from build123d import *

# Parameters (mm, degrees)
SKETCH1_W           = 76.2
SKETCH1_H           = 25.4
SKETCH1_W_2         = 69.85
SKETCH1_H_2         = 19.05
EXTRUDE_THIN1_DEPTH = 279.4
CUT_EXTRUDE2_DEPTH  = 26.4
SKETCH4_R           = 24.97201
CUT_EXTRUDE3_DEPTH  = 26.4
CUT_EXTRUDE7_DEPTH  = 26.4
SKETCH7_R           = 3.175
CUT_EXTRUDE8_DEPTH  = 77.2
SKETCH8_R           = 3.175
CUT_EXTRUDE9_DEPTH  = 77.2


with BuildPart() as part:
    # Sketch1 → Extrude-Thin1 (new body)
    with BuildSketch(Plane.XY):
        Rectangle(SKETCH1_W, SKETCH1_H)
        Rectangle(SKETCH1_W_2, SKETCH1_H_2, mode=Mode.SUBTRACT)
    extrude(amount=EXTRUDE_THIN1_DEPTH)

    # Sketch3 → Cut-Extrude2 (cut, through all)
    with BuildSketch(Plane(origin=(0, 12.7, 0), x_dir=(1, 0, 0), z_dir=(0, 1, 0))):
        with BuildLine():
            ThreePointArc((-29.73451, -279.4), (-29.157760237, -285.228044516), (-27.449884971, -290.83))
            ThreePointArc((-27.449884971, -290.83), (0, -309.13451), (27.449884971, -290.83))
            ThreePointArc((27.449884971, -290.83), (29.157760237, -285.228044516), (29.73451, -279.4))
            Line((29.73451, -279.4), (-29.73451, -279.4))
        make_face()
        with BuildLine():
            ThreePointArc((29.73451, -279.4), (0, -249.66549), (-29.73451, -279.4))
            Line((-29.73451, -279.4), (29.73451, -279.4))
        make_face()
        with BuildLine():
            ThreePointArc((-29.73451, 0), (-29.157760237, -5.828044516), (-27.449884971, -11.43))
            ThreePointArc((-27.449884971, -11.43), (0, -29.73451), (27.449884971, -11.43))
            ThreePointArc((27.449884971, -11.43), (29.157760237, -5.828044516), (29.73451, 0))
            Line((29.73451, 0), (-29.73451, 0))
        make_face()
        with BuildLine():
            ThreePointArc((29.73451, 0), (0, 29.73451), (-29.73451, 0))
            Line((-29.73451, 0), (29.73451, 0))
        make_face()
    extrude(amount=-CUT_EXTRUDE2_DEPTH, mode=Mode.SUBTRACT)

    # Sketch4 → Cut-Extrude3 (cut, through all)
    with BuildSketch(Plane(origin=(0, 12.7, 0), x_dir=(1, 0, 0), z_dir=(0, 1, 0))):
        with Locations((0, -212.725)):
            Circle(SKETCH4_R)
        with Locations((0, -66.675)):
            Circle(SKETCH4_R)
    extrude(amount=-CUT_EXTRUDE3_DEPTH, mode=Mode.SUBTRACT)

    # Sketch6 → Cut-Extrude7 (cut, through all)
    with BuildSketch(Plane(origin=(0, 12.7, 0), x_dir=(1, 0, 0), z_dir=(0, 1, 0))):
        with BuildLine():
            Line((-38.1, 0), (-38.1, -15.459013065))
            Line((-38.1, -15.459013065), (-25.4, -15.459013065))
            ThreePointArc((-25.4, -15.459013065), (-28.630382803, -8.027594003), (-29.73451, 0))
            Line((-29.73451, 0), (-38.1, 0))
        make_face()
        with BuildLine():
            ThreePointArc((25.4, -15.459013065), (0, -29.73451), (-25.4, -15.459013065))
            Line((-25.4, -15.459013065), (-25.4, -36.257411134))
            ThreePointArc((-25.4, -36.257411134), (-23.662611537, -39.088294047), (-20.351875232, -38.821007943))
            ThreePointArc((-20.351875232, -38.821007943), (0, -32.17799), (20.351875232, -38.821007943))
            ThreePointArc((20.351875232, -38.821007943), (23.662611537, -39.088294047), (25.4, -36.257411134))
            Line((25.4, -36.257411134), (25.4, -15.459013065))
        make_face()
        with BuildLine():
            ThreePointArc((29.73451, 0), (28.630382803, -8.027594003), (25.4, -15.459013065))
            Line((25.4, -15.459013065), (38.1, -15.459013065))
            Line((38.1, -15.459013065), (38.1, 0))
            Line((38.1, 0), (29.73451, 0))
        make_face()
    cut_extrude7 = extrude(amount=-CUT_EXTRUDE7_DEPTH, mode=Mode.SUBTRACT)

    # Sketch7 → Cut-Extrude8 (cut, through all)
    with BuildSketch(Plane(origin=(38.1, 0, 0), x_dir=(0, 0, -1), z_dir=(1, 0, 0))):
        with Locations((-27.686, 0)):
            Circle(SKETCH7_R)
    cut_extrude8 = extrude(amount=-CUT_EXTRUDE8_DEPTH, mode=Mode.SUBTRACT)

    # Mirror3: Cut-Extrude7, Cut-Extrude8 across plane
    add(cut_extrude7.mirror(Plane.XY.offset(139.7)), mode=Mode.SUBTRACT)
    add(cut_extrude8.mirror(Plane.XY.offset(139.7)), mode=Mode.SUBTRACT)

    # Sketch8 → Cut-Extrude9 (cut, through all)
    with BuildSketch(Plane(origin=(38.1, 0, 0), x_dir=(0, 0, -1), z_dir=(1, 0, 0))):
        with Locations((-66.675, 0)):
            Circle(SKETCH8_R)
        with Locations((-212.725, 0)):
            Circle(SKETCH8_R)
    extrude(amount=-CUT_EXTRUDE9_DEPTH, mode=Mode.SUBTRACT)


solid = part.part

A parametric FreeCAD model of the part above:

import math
import FreeCAD as App
import Part
import Sketcher

V = App.Vector
Q = App.Units.Quantity

doc = App.newDocument("Part")
params = doc.addObject("Spreadsheet::Sheet", "Params")
for row, (alias, value) in enumerate([
    ("sketch1_width", "3 in"),
    ("sketch1_height", "1 in"),
    ("sketch1_width2", "2.75 in"),
    ("sketch1_height2", "0.75 in"),
    ("pad1_length", "11 in"),
    ("sketch4_width", "0.5 in"),
    ("sketch4_radius", "0.125 in"),
    ("sketch5_diameter", "0.25 in"),
    ("sketch6_diameter", "0.25 in"),
], start=1):
    params.set(f"A{row}", alias)
    params.set(f"B{row}", "=" + value)
    params.setAlias(f"B{row}", alias)

body = doc.addObject("PartDesign::Body", "Body")

sketch1 = body.newObject("Sketcher::SketchObject", "Sketch")
sketch1.AttachmentSupport = (doc.getObject("XY_Plane"), [""])
sketch1.MapMode = "FlatFace"
sketch1.addGeometry(Part.LineSegment(V(-38, 13, 0), V(-38, -13, 0)), False)
sketch1.addGeometry(Part.LineSegment(V(-38, -13, 0), V(38, -13, 0)), False)
sketch1.addGeometry(Part.LineSegment(V(38, -13, 0), V(38, 13, 0)), False)
sketch1.addGeometry(Part.LineSegment(V(38, 13, 0), V(-38, 13, 0)), False)
sketch1.addGeometry(Part.LineSegment(V(35, -10, 0), V(-35, -10, 0)), False)
sketch1.addGeometry(Part.LineSegment(V(-35, -10, 0), V(-35, 10, 0)), False)
sketch1.addGeometry(Part.LineSegment(V(-35, 10, 0), V(35, 10, 0)), False)
sketch1.addGeometry(Part.LineSegment(V(35, 10, 0), V(35, -10, 0)), False)
sketch1.addConstraint(Sketcher.Constraint("Coincident", 0, 2, 1, 1))
sketch1.addConstraint(Sketcher.Constraint("Coincident", 1, 2, 2, 1))
sketch1.addConstraint(Sketcher.Constraint("Coincident", 2, 2, 3, 1))
sketch1.addConstraint(Sketcher.Constraint("Coincident", 3, 2, 0, 1))
sketch1.addConstraint(Sketcher.Constraint("Coincident", 4, 2, 5, 1))
sketch1.addConstraint(Sketcher.Constraint("Coincident", 5, 2, 6, 1))
sketch1.addConstraint(Sketcher.Constraint("Coincident", 6, 2, 7, 1))
sketch1.addConstraint(Sketcher.Constraint("Coincident", 7, 2, 4, 1))
sketch1.addConstraint(Sketcher.Constraint("Vertical", 0))
sketch1.addConstraint(Sketcher.Constraint("Horizontal", 1))
sketch1.addConstraint(Sketcher.Constraint("Vertical", 2))
sketch1.addConstraint(Sketcher.Constraint("Horizontal", 3))
sketch1.addConstraint(Sketcher.Constraint("Horizontal", 4))
sketch1.addConstraint(Sketcher.Constraint("Vertical", 5))
sketch1.addConstraint(Sketcher.Constraint("Horizontal", 6))
sketch1.addConstraint(Sketcher.Constraint("Vertical", 7))
sketch1.addConstraint(Sketcher.Constraint("Symmetric", 0, 2, 2, 2, -1, 1))
sketch1.addConstraint(Sketcher.Constraint("Symmetric", 4, 2, 6, 2, -1, 1))
sketch1.addConstraint(Sketcher.Constraint("DistanceX", 1, 1, 1, 2, Q("3 in")))
sketch1.addConstraint(Sketcher.Constraint("DistanceY", 0, 2, 0, 1, Q("1 in")))
sketch1.addConstraint(Sketcher.Constraint("DistanceX", 4, 2, 4, 1, Q("2.75 in")))
sketch1.addConstraint(Sketcher.Constraint("DistanceY", 5, 1, 5, 2, Q("0.75 in")))
sketch1.setExpression("Constraints[18]", "Params.sketch1_width")
sketch1.setExpression("Constraints[19]", "Params.sketch1_height")
sketch1.setExpression("Constraints[20]", "Params.sketch1_width2")
sketch1.setExpression("Constraints[21]", "Params.sketch1_height2")
pad1 = body.newObject("PartDesign::Pad", "Pad")
pad1.Profile = sketch1
pad1.setExpression("Length", "Params.pad1_length")

sketch2 = body.newObject("Sketcher::SketchObject", "Sketch001")
sketch2.AttachmentSupport = (doc.getObject("XZ_Plane"), [""])
sketch2.MapMode = "FlatFace"
sketch2.AttachmentOffset = App.Placement(V(0, 0, -0.5 * 25.4), App.Rotation())
sketch2.addGeometry(Part.ArcOfCircle(Part.Circle(V(0, 279, 0), V(0, 0, 1), 30), math.radians(157), math.radians(180)), False)
sketch2.addGeometry(Part.ArcOfCircle(Part.Circle(V(0, 279, 0), V(0, 0, 1), 30), math.radians(23), math.radians(157)), False)
sketch2.addGeometry(Part.ArcOfCircle(Part.Circle(V(0, 279, 0), V(0, 0, 1), 30), math.radians(0), math.radians(23)), False)
sketch2.addGeometry(Part.ArcOfCircle(Part.Circle(V(0, 279, 0), V(0, 0, 1), 30), math.radians(180), math.radians(360)), False)
sketch2.addGeometry(Part.ArcOfCircle(Part.Circle(V(0, 0, 0), V(0, 0, 1), 30), math.radians(157), math.radians(180)), False)
sketch2.addGeometry(Part.ArcOfCircle(Part.Circle(V(0, 0, 0), V(0, 0, 1), 30), math.radians(23), math.radians(157)), False)
sketch2.addGeometry(Part.ArcOfCircle(Part.Circle(V(0, 0, 0), V(0, 0, 1), 30), math.radians(0), math.radians(23)), False)
sketch2.addGeometry(Part.ArcOfCircle(Part.Circle(V(0, 0, 0), V(0, 0, 1), 30), math.radians(180), math.radians(360)), False)
sketch2.addConstraint(Sketcher.Constraint("Tangent", 0, 1, 1, 2))
sketch2.addConstraint(Sketcher.Constraint("Tangent", 1, 1, 2, 2))
sketch2.addConstraint(Sketcher.Constraint("Tangent", 2, 1, 3, 2))
sketch2.addConstraint(Sketcher.Constraint("Tangent", 3, 1, 0, 2))
sketch2.addConstraint(Sketcher.Constraint("Tangent", 4, 1, 5, 2))
sketch2.addConstraint(Sketcher.Constraint("Tangent", 5, 1, 6, 2))
sketch2.addConstraint(Sketcher.Constraint("Tangent", 6, 1, 7, 2))
sketch2.addConstraint(Sketcher.Constraint("Tangent", 7, 1, 4, 2))
sketch2.addConstraint(Sketcher.Constraint("Coincident", 4, 3, -1, 1))
sketch2.addConstraint(Sketcher.Constraint("Equal", 0, 1))
sketch2.addConstraint(Sketcher.Constraint("Equal", 3, 4))
sketch2.addConstraint(Sketcher.Constraint("Equal", 4, 5))
sketch2.addConstraint(Sketcher.Constraint("Symmetric", 0, 1, 1, 1, -2))
sketch2.addConstraint(Sketcher.Constraint("PointOnObject", 6, 1, -1))
sketch2.addConstraint(Sketcher.Constraint("PointOnObject", 7, 1, -1))
sketch2.addConstraint(Sketcher.Constraint("Horizontal", 3, 3, 2, 1))
sketch2.addConstraint(Sketcher.Constraint("Horizontal", 2, 1, 3, 1))
sketch2.addConstraint(Sketcher.Constraint("Horizontal", 4, 1, 5, 1))
sketch2.addConstraint(Sketcher.Constraint("Vertical", 0, 1, 4, 1))
sketch2.addConstraint(Sketcher.Constraint("DistanceY", -1, 1, 0, 3, Q("11 in")))
sketch2.addConstraint(Sketcher.Constraint("DistanceY", -1, 1, 0, 1, Q("11.45 in")))
sketch2.addConstraint(Sketcher.Constraint("Radius", 0, 29.73451))
pocket1 = body.newObject("PartDesign::Pocket", "Pocket")
pocket1.Profile = sketch2
pocket1.Type = "ThroughAll"
pocket1.Reversed = True

sketch3 = body.newObject("Sketcher::SketchObject", "Sketch002")
sketch3.AttachmentSupport = (doc.getObject("XZ_Plane"), [""])
sketch3.MapMode = "FlatFace"
sketch3.AttachmentOffset = App.Placement(V(0, 0, -0.5 * 25.4), App.Rotation())
sketch3.addGeometry(Part.Circle(V(0, 213, 0), V(0, 0, 1), 25), False)
sketch3.addGeometry(Part.Circle(V(0, 67, 0), V(0, 0, 1), 25), False)
sketch3.addConstraint(Sketcher.Constraint("Equal", 0, 1))
sketch3.addConstraint(Sketcher.Constraint("PointOnObject", 0, 3, -2))
sketch3.addConstraint(Sketcher.Constraint("PointOnObject", 1, 3, -2))
sketch3.addConstraint(Sketcher.Constraint("Diameter", 0, Q("1.9663 in")))
sketch3.addConstraint(Sketcher.Constraint("DistanceY", 1, 3, 0, 3, Q("5.75 in")))
sketch3.addConstraint(Sketcher.Constraint("DistanceY", -1, 1, 0, 3, Q("8.375 in")))
pocket2 = body.newObject("PartDesign::Pocket", "Pocket001")
pocket2.Profile = sketch3
pocket2.Type = "ThroughAll"
pocket2.Reversed = True

sketch4 = body.newObject("Sketcher::SketchObject", "Sketch003")
sketch4.AttachmentSupport = (doc.getObject("XZ_Plane"), [""])
sketch4.MapMode = "FlatFace"
sketch4.AttachmentOffset = App.Placement(V(0, 0, -0.5 * 25.4), App.Rotation())
sketch4.addGeometry(Part.LineSegment(V(-38.1, 0, 0), V(-38.1, 15.5, 0)), False)
sketch4.addGeometry(Part.LineSegment(V(-38.1, 15.5, 0), V(-25.4, 15.5, 0)), False)
sketch4.addGeometry(Part.ArcOfCircle(Part.Circle(V(0, 0, 0), V(0, 0, 1), 29.7), math.radians(149), math.radians(180)), False)
sketch4.addGeometry(Part.LineSegment(V(-29.7, 0, 0), V(-38.1, 0, 0)), False)
sketch4.addGeometry(Part.ArcOfCircle(Part.Circle(V(0, 0, 0), V(0, 0, 1), 29.7), math.radians(31), math.radians(149)), False)
sketch4.addGeometry(Part.LineSegment(V(-25.4, 15.5, 0), V(-25.4, 36.3, 0)), False)
sketch4.addGeometry(Part.ArcOfCircle(Part.Circle(V(-22.2, 36.3, 0), V(0, 0, 1), 3.2), math.radians(54), math.radians(180)), False)
sketch4.addGeometry(Part.ArcOfCircle(Part.Circle(V(0, 66.7, 0), V(0, 0, 1), 34.5), math.radians(-126), math.radians(-54)), False)
sketch4.addGeometry(Part.ArcOfCircle(Part.Circle(V(22.2, 36.3, 0), V(0, 0, 1), 3.2), math.radians(0), math.radians(126)), False)
sketch4.addGeometry(Part.LineSegment(V(25.4, 36.3, 0), V(25.4, 15.5, 0)), False)
sketch4.addGeometry(Part.ArcOfCircle(Part.Circle(V(0, 0, 0), V(0, 0, 1), 29.7), math.radians(0), math.radians(31)), False)
sketch4.addGeometry(Part.LineSegment(V(25.4, 15.5, 0), V(38.1, 15.5, 0)), False)
sketch4.addGeometry(Part.LineSegment(V(38.1, 15.5, 0), V(38.1, 0, 0)), False)
sketch4.addGeometry(Part.LineSegment(V(38.1, 0, 0), V(29.7, 0, 0)), False)
sketch4.addConstraint(Sketcher.Constraint("Coincident", 0, 2, 1, 1))
sketch4.addConstraint(Sketcher.Constraint("Coincident", 1, 2, 2, 1))
sketch4.addConstraint(Sketcher.Constraint("Coincident", 2, 2, 3, 1))
sketch4.addConstraint(Sketcher.Constraint("Coincident", 3, 2, 0, 1))
sketch4.addConstraint(Sketcher.Constraint("Coincident", 4, 2, 5, 1))
sketch4.addConstraint(Sketcher.Constraint("Tangent", 5, 2, 6, 2))
sketch4.addConstraint(Sketcher.Constraint("Tangent", 6, 1, 7, 1))
sketch4.addConstraint(Sketcher.Constraint("Tangent", 7, 2, 8, 2))
sketch4.addConstraint(Sketcher.Constraint("Tangent", 8, 1, 9, 1))
sketch4.addConstraint(Sketcher.Constraint("Coincident", 9, 2, 4, 1))
sketch4.addConstraint(Sketcher.Constraint("Coincident", 10, 2, 11, 1))
sketch4.addConstraint(Sketcher.Constraint("Coincident", 11, 2, 12, 1))
sketch4.addConstraint(Sketcher.Constraint("Coincident", 12, 2, 13, 1))
sketch4.addConstraint(Sketcher.Constraint("Coincident", 13, 2, 10, 1))
sketch4.addConstraint(Sketcher.Constraint("Vertical", 0))
sketch4.addConstraint(Sketcher.Constraint("Horizontal", 1))
sketch4.addConstraint(Sketcher.Constraint("Horizontal", 3))
sketch4.addConstraint(Sketcher.Constraint("Vertical", 5))
sketch4.addConstraint(Sketcher.Constraint("Vertical", 9))
sketch4.addConstraint(Sketcher.Constraint("Horizontal", 11))
sketch4.addConstraint(Sketcher.Constraint("Vertical", 12))
sketch4.addConstraint(Sketcher.Constraint("Horizontal", 13))
sketch4.addConstraint(Sketcher.Constraint("Coincident", 2, 3, -1, 1))
sketch4.addConstraint(Sketcher.Constraint("Coincident", 4, 3, -1, 1))
sketch4.addConstraint(Sketcher.Constraint("Coincident", 10, 3, -1, 1))
sketch4.addConstraint(Sketcher.Constraint("Coincident", 4, 2, 1, 2))
sketch4.addConstraint(Sketcher.Constraint("Coincident", 10, 2, 9, 2))
sketch4.addConstraint(Sketcher.Constraint("Equal", 6, 8))
sketch4.addConstraint(Sketcher.Constraint("Symmetric", 3, 2, 12, 2, -1, 1))
sketch4.addConstraint(Sketcher.Constraint("Symmetric", 6, 3, 8, 3, -2))
sketch4.addConstraint(Sketcher.Constraint("PointOnObject", 2, 2, -1))
sketch4.addConstraint(Sketcher.Constraint("DistanceX", 1, 1, 1, 2, Q("0.5 in")))
sketch4.addConstraint(Sketcher.Constraint("DistanceX", 1, 2, -1, 1, Q("1 in")))
sketch4.addConstraint(Sketcher.Constraint("Radius", 6, Q("0.125 in")))
sketch4.addConstraint(Sketcher.Constraint("DistanceY", -1, 1, 7, 3, Q("2.625 in")))
sketch4.addConstraint(Sketcher.Constraint("Radius", 2, 29.73451))
sketch4.addConstraint(Sketcher.Constraint("Radius", 7, 34.49701))
sketch4.setExpression("Constraints[31]", "Params.sketch4_width")
sketch4.setExpression("Constraints[33]", "Params.sketch4_radius")
pocket3 = body.newObject("PartDesign::Pocket", "Pocket002")
pocket3.Profile = sketch4
pocket3.Type = "ThroughAll"
pocket3.Reversed = True

sketch5 = body.newObject("Sketcher::SketchObject", "Sketch004")
sketch5.AttachmentSupport = (doc.getObject("YZ_Plane"), [""])
sketch5.MapMode = "FlatFace"
sketch5.AttachmentOffset = App.Placement(V(0, 0, 1.5 * 25.4), App.Rotation())
sketch5.addGeometry(Part.Circle(V(0, 27.7, 0), V(0, 0, 1), 3.2), False)
sketch5.addConstraint(Sketcher.Constraint("PointOnObject", 0, 3, -2))
sketch5.addConstraint(Sketcher.Constraint("Diameter", 0, Q("0.25 in")))
sketch5.addConstraint(Sketcher.Constraint("DistanceY", -1, 1, 0, 3, Q("1.09 in")))
sketch5.setExpression("Constraints[1]", "Params.sketch5_diameter")
pocket4 = body.newObject("PartDesign::Pocket", "Pocket003")
pocket4.Profile = sketch5
pocket4.Type = "ThroughAll"
doc.recompute()

datumplane = body.newObject("PartDesign::Plane", "DatumPlane")
datumplane.AttachmentSupport = (doc.getObject("XY_Plane"), [""])
datumplane.MapMode = "FlatFace"
datumplane.AttachmentOffset = App.Placement(V(0, 0, 5.5 * 25.4), App.Rotation())
mirrored = body.newObject("PartDesign::Mirrored", "Mirrored")
mirrored.Originals = [pocket3, pocket4]
mirrored.MirrorPlane = (datumplane, [""])
body.Tip = mirrored

sketch6 = body.newObject("Sketcher::SketchObject", "Sketch005")
sketch6.AttachmentSupport = (doc.getObject("YZ_Plane"), [""])
sketch6.MapMode = "FlatFace"
sketch6.AttachmentOffset = App.Placement(V(0, 0, 1.5 * 25.4), App.Rotation())
sketch6.addGeometry(Part.Circle(V(0, 66.7, 0), V(0, 0, 1), 3.2), False)
sketch6.addGeometry(Part.Circle(V(0, 212.7, 0), V(0, 0, 1), 3.2), False)
sketch6.addConstraint(Sketcher.Constraint("Equal", 0, 1))
sketch6.addConstraint(Sketcher.Constraint("PointOnObject", 0, 3, -2))
sketch6.addConstraint(Sketcher.Constraint("PointOnObject", 1, 3, -2))
sketch6.addConstraint(Sketcher.Constraint("Diameter", 0, Q("0.25 in")))
sketch6.addConstraint(Sketcher.Constraint("DistanceY", 0, 3, 1, 3, Q("5.75 in")))
sketch6.addConstraint(Sketcher.Constraint("DistanceY", -1, 1, 0, 3, Q("2.625 in")))
sketch6.setExpression("Constraints[3]", "Params.sketch6_diameter")
pocket5 = body.newObject("PartDesign::Pocket", "Pocket004")
pocket5.Profile = sketch6
pocket5.Type = "ThroughAll"

doc.recompute()
